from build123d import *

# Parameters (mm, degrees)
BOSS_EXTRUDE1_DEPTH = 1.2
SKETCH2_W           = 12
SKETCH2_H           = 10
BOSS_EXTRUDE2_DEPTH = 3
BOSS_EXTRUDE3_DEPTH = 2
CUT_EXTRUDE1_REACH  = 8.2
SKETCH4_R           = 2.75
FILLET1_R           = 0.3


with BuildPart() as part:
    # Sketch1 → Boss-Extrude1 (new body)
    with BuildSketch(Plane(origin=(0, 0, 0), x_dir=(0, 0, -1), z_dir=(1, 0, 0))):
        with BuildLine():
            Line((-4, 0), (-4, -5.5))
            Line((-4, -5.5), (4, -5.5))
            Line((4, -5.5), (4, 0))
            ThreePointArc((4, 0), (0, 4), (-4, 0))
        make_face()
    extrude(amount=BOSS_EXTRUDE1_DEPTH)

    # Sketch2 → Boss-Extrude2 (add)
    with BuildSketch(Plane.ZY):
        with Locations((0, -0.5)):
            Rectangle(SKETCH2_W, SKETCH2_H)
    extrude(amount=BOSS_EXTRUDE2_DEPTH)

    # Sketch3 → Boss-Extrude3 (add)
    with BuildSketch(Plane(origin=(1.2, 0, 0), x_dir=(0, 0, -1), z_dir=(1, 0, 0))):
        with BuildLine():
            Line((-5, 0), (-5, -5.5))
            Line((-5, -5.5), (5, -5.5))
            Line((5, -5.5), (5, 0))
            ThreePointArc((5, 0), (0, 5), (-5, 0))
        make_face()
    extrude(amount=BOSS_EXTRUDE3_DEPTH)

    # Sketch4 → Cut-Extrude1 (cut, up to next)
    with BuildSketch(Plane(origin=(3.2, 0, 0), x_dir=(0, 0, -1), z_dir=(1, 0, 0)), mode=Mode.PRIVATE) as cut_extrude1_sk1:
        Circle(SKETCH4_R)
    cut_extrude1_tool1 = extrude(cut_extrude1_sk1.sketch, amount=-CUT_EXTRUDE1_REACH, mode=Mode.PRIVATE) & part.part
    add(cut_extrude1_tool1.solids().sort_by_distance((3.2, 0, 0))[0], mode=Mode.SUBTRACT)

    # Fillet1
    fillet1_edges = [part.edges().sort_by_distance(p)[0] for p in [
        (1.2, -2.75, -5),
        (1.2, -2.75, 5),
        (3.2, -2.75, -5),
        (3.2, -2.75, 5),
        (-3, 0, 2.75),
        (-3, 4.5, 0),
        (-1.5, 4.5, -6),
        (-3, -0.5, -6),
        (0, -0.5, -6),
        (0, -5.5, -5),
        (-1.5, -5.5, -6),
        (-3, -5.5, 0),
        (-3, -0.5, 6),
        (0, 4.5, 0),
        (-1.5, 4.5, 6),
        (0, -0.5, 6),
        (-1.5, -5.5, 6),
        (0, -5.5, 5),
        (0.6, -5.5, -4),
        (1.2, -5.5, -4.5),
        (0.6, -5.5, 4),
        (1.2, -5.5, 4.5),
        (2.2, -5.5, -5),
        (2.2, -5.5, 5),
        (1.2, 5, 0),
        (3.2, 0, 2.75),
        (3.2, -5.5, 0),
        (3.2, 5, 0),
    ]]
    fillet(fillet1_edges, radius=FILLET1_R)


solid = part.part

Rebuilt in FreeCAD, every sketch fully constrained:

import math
import FreeCAD as App
import Part
import Sketcher
from FreeCAD import Vector


def edges_at(feature, points):
    """Names of the edges that pass closest to the given points."""
    edges = feature.Shape.Edges
    near = lambda p: min(range(len(edges)), key=lambda i: edges[i].distToShape(Part.Vertex(*p))[0])
    return sorted({f"Edge{near(p) + 1}" for p in points})

doc = App.newDocument("Part")
body = doc.addObject("PartDesign::Body", "Body")

sketch1 = doc.addObject("Sketcher::SketchObject", "Sketch")
body.addObject(sketch1)
sketch1.AttachmentSupport = (doc.YZ_Plane, [""])
sketch1.MapMode = "FlatFace"
sketch1.addGeometry([
    Part.LineSegment(Vector(0, 4, 0), Vector(-5.5, 4, 0)),
    Part.LineSegment(Vector(-5.5, 4, 0), Vector(-5.5, -4, 0)),
    Part.LineSegment(Vector(-5.5, -4, 0), Vector(0, -4, 0)),
    Part.ArcOfCircle(Part.Circle(Vector(0, 0, 0), Vector(0, 0, 1), 4), math.radians(-90), math.radians(90)),
], False)
sketch1.addConstraint([
    Sketcher.Constraint("Coincident", 0, 2, 1, 1),
    Sketcher.Constraint("Coincident", 1, 2, 2, 1),
    Sketcher.Constraint("Tangent", 2, 2, 3, 1),
    Sketcher.Constraint("Tangent", 3, 2, 0, 1),
    Sketcher.Constraint("Horizontal", 0),
    Sketcher.Constraint("Vertical", 1),
    Sketcher.Constraint("Horizontal", 2),
    Sketcher.Constraint("Coincident", 3, 3, -1, 1),
    Sketcher.Constraint("Radius", 3, 4.0),
    Sketcher.Constraint("DistanceX", 0, 2, 0, 1, 5.5),
])
pad1 = doc.addObject("PartDesign::Pad", "Pad")
body.addObject(pad1)
pad1.Profile = sketch1
pad1.Length = 1.2

sketch2 = doc.addObject("Sketcher::SketchObject", "Sketch001")
body.addObject(sketch2)
sketch2.AttachmentSupport = (doc.YZ_Plane, [""])
sketch2.MapMode = "FlatFace"
sketch2.addGeometry([
    Part.LineSegment(Vector(4, -6, 0), Vector(-6, -6, 0)),
    Part.LineSegment(Vector(-6, -6, 0), Vector(-6, 6, 0)),
    Part.LineSegment(Vector(-6, 6, 0), Vector(4, 6, 0)),
    Part.LineSegment(Vector(4, 6, 0), Vector(4, -6, 0)),
], False)
sketch2.addConstraint([
    Sketcher.Constraint("Coincident", 0, 2, 1, 1),
    Sketcher.Constraint("Coincident", 1, 2, 2, 1),
    Sketcher.Constraint("Coincident", 2, 2, 3, 1),
    Sketcher.Constraint("Coincident", 3, 2, 0, 1),
    Sketcher.Constraint("Horizontal", 0),
    Sketcher.Constraint("Vertical", 1),
    Sketcher.Constraint("Horizontal", 2),
    Sketcher.Constraint("Vertical", 3),
    Sketcher.Constraint("DistanceX", 0, 2, 0, 1, 10.0),
    Sketcher.Constraint("DistanceY", 1, 1, 1, 2, 12.0),
    Sketcher.Constraint("DistanceY", 0, 2, -1, 1, 6.0),
    Sketcher.Constraint("DistanceX", 0, 2, -1, 1, 5.5),
])
pad2 = doc.addObject("PartDesign::Pad", "Pad001")
body.addObject(pad2)
pad2.Profile = sketch2
pad2.Length = 3
pad2.Reversed = True

sketch3 = doc.addObject("Sketcher::SketchObject", "Sketch002")
body.addObject(sketch3)
sketch3.AttachmentSupport = (doc.YZ_Plane, [""])
sketch3.MapMode = "FlatFace"
sketch3.AttachmentOffset = App.Placement(Vector(0, 0, 1.2), App.Rotation())
sketch3.addGeometry([
    Part.LineSegment(Vector(0, 5, 0), Vector(-6, 5, 0)),
    Part.LineSegment(Vector(-6, 5, 0), Vector(-6, -5, 0)),
    Part.LineSegment(Vector(-6, -5, 0), Vector(0, -5, 0)),
    Part.ArcOfCircle(Part.Circle(Vector(0, 0, 0), Vector(0, 0, 1), 5), math.radians(-90), math.radians(90)),
], False)
sketch3.addConstraint([
    Sketcher.Constraint("Coincident", 0, 2, 1, 1),
    Sketcher.Constraint("Coincident", 1, 2, 2, 1),
    Sketcher.Constraint("Tangent", 2, 2, 3, 1),
    Sketcher.Constraint("Tangent", 3, 2, 0, 1),
    Sketcher.Constraint("Horizontal", 0),
    Sketcher.Constraint("Vertical", 1),
    Sketcher.Constraint("Horizontal", 2),
    Sketcher.Constraint("Coincident", 3, 3, -1, 1),
    Sketcher.Constraint("Radius", 3, 5.0),
    Sketcher.Constraint("DistanceX", 0, 2, 0, 1, 5.5),
])
pad3 = doc.addObject("PartDesign::Pad", "Pad002")
body.addObject(pad3)
pad3.Profile = sketch3
pad3.Length = 2

sketch4 = doc.addObject("Sketcher::SketchObject", "Sketch003")
body.addObject(sketch4)
sketch4.AttachmentSupport = (doc.YZ_Plane, [""])
sketch4.MapMode = "FlatFace"
sketch4.AttachmentOffset = App.Placement(Vector(0, 0, 3.2), App.Rotation())
sketch4.addGeometry(Part.Circle(Vector(0, 0, 0), Vector(0, 0, 1), 2.8), False)
sketch4.addConstraint([
    Sketcher.Constraint("Coincident", 0, 3, -1, 1),
    Sketcher.Constraint("Diameter", 0, 5.5),
])
pocket1 = doc.addObject("PartDesign::Pocket", "Pocket")
body.addObject(pocket1)
pocket1.Profile = sketch4
pocket1.Type = "UpToFirst"
doc.recompute()

fillet = doc.addObject("PartDesign::Fillet", "Fillet")
body.addObject(fillet)
fillet.Base = (pocket1, edges_at(pocket1, [
    (1.2, -2.75, -5),
    (1.2, -2.75, 5),
    (3.2, -2.75, -5),
    (3.2, -2.75, 5),
    (-3, 0, 2.75),
    (-3, 4.5, 0),
    (-1.5, 4.5, -6),
    (-3, -0.5, -6),
    (0, -0.5, -6),
    (0, -5.5, -5),
    (-1.5, -5.5, -6),
    (-3, -5.5, 0),
    (-3, -0.5, 6),
    (0, 4.5, 0),
    (-1.5, 4.5, 6),
    (0, -0.5, 6),
    (-1.5, -5.5, 6),
    (0, -5.5, 5),
    (0.6, -5.5, -4),
    (1.2, -5.5, -4.5),
    (0.6, -5.5, 4),
    (1.2, -5.5, 4.5),
    (2.2, -5.5, -5),
    (2.2, -5.5, 5),
    (1.2, 5, 0),
    (3.2, 0, 2.75),
    (3.2, -5.5, 0),
    (3.2, 5, 0),
]))
fillet.Radius = 0.3

doc.recompute()
